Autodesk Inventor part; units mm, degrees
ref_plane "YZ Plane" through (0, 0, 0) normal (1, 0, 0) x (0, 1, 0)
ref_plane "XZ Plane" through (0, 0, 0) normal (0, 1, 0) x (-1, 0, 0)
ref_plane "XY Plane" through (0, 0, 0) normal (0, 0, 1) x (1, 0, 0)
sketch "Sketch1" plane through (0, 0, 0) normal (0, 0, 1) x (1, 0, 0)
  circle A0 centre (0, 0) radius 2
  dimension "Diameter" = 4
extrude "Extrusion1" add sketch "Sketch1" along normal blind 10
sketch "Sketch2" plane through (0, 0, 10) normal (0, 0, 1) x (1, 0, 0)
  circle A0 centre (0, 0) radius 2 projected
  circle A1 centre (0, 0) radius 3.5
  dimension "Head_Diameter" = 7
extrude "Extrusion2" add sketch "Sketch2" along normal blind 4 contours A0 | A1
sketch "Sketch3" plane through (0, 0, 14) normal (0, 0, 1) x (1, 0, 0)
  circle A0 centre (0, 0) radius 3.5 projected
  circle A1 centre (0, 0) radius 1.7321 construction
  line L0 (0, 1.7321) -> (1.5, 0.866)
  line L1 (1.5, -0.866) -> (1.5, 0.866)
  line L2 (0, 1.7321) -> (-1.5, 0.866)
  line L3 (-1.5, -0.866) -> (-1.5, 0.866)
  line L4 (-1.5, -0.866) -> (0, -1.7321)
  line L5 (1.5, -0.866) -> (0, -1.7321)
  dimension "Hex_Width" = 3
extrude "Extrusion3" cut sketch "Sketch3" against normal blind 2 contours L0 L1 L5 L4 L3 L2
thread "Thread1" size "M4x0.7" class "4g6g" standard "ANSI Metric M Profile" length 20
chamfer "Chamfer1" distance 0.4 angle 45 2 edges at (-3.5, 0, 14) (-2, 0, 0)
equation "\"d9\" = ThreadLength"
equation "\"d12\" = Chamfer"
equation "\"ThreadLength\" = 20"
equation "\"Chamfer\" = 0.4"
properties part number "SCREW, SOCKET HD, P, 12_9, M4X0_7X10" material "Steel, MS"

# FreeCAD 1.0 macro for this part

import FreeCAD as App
import Part
import Sketcher


def edges_at(feature, points):
    """Names of the edges that pass closest to the given points."""
    edges = feature.Shape.Edges
    near = lambda p: min(range(len(edges)), key=lambda i: edges[i].distToShape(Part.Vertex(*p))[0])
    return sorted({f"Edge{near(p) + 1}" for p in points})

doc = App.newDocument("Part")
body = doc.addObject("PartDesign::Body", "Body")

# Sketch on XY plane
sketch1 = body.newObject("Sketcher::SketchObject", "Sketch")
sketch1.AttachmentSupport = (doc.getObject("XY_Plane"), [""])
sketch1.MapMode = "FlatFace"
sketch1.addGeometry(Part.Circle(App.Vector(0, 0, 0), App.Vector(0, 0, 1), 2), False)
sketch1.addConstraint([
    Sketcher.Constraint("Coincident", 0, 3, -1, 1),
    Sketcher.Constraint("Diameter", 0, 4.0),
])
pad1 = body.newObject("PartDesign::Pad", "Pad")
pad1.Profile = sketch1
pad1.Length = 10

# Sketch on XY plane
sketch2 = body.newObject("Sketcher::SketchObject", "Sketch001")
sketch2.AttachmentSupport = (doc.getObject("XY_Plane"), [""])
sketch2.MapMode = "FlatFace"
sketch2.AttachmentOffset = App.Placement(App.Vector(0, 0, 10), App.Rotation())
sketch2.addGeometry(Part.Circle(App.Vector(0, 0, 0), App.Vector(0, 0, 1), 3.5), False)
sketch2.addConstraint([
    Sketcher.Constraint("Coincident", 0, 3, -1, 1),
    Sketcher.Constraint("Diameter", 0, 7.0),
])
pad2 = body.newObject("PartDesign::Pad", "Pad001")
pad2.Profile = sketch2
pad2.Length = 4

# Sketch on XY plane
sketch3 = body.newObject("Sketcher::SketchObject", "Sketch002")
sketch3.AttachmentSupport = (doc.getObject("XY_Plane"), [""])
sketch3.MapMode = "FlatFace"
sketch3.AttachmentOffset = App.Placement(App.Vector(0, 0, 14), App.Rotation())
sketch3.addGeometry([
    Part.LineSegment(App.Vector(1.5, 0.866, 0), App.Vector(0, 1.7321, 0)),  # 0
    Part.LineSegment(App.Vector(0, 1.7321, 0), App.Vector(-1.5, 0.866, 0)),  # 1
    Part.LineSegment(App.Vector(-1.5, 0.866, 0), App.Vector(-1.5, -0.866, 0)),  # 2
    Part.LineSegment(App.Vector(-1.5, -0.866, 0), App.Vector(0, -1.7321, 0)),  # 3
    Part.LineSegment(App.Vector(0, -1.7321, 0), App.Vector(1.5, -0.866, 0)),  # 4
    Part.LineSegment(App.Vector(1.5, -0.866, 0), App.Vector(1.5, 0.866, 0)),  # 5
], False)
sketch3.addConstraint([
    Sketcher.Constraint("Coincident", 0, 2, 1, 1),
    Sketcher.Constraint("Coincident", 1, 2, 2, 1),
    Sketcher.Constraint("Coincident", 2, 2, 3, 1),
    Sketcher.Constraint("Coincident", 3, 2, 4, 1),
    Sketcher.Constraint("Coincident", 4, 2, 5, 1),
    Sketcher.Constraint("Coincident", 5, 2, 0, 1),
    Sketcher.Constraint("Vertical", 2),
    Sketcher.Constraint("Vertical", 5),
    Sketcher.Constraint("Symmetric", 0, 2, 3, 2, -1, 1),
    Sketcher.Constraint("Symmetric", 1, 2, 4, 2, -1, 1),
    Sketcher.Constraint("PointOnObject", 0, 2, -2),
    Sketcher.Constraint("Parallel", 0, 3),
    Sketcher.Constraint("Horizontal", 2, 2, 4, 2),
    Sketcher.Constraint("DistanceX", 2, 2, 4, 2, 3.0),
    Sketcher.Constraint("DistanceY", 2, 2, 2, 1, 1.732),
    Sketcher.Constraint("Distance", 0, 1.732),
])
pocket1 = body.newObject("PartDesign::Pocket", "Pocket")
pocket1.Profile = sketch3
pocket1.Length = 2
doc.recompute()

chamfer = body.newObject("PartDesign::Chamfer", "Chamfer")
chamfer.Base = (pocket1, edges_at(pocket1, [(-3.5, 0, 14), (-2, 0, 0)]))
chamfer.Size = 0.4

doc.recompute()
